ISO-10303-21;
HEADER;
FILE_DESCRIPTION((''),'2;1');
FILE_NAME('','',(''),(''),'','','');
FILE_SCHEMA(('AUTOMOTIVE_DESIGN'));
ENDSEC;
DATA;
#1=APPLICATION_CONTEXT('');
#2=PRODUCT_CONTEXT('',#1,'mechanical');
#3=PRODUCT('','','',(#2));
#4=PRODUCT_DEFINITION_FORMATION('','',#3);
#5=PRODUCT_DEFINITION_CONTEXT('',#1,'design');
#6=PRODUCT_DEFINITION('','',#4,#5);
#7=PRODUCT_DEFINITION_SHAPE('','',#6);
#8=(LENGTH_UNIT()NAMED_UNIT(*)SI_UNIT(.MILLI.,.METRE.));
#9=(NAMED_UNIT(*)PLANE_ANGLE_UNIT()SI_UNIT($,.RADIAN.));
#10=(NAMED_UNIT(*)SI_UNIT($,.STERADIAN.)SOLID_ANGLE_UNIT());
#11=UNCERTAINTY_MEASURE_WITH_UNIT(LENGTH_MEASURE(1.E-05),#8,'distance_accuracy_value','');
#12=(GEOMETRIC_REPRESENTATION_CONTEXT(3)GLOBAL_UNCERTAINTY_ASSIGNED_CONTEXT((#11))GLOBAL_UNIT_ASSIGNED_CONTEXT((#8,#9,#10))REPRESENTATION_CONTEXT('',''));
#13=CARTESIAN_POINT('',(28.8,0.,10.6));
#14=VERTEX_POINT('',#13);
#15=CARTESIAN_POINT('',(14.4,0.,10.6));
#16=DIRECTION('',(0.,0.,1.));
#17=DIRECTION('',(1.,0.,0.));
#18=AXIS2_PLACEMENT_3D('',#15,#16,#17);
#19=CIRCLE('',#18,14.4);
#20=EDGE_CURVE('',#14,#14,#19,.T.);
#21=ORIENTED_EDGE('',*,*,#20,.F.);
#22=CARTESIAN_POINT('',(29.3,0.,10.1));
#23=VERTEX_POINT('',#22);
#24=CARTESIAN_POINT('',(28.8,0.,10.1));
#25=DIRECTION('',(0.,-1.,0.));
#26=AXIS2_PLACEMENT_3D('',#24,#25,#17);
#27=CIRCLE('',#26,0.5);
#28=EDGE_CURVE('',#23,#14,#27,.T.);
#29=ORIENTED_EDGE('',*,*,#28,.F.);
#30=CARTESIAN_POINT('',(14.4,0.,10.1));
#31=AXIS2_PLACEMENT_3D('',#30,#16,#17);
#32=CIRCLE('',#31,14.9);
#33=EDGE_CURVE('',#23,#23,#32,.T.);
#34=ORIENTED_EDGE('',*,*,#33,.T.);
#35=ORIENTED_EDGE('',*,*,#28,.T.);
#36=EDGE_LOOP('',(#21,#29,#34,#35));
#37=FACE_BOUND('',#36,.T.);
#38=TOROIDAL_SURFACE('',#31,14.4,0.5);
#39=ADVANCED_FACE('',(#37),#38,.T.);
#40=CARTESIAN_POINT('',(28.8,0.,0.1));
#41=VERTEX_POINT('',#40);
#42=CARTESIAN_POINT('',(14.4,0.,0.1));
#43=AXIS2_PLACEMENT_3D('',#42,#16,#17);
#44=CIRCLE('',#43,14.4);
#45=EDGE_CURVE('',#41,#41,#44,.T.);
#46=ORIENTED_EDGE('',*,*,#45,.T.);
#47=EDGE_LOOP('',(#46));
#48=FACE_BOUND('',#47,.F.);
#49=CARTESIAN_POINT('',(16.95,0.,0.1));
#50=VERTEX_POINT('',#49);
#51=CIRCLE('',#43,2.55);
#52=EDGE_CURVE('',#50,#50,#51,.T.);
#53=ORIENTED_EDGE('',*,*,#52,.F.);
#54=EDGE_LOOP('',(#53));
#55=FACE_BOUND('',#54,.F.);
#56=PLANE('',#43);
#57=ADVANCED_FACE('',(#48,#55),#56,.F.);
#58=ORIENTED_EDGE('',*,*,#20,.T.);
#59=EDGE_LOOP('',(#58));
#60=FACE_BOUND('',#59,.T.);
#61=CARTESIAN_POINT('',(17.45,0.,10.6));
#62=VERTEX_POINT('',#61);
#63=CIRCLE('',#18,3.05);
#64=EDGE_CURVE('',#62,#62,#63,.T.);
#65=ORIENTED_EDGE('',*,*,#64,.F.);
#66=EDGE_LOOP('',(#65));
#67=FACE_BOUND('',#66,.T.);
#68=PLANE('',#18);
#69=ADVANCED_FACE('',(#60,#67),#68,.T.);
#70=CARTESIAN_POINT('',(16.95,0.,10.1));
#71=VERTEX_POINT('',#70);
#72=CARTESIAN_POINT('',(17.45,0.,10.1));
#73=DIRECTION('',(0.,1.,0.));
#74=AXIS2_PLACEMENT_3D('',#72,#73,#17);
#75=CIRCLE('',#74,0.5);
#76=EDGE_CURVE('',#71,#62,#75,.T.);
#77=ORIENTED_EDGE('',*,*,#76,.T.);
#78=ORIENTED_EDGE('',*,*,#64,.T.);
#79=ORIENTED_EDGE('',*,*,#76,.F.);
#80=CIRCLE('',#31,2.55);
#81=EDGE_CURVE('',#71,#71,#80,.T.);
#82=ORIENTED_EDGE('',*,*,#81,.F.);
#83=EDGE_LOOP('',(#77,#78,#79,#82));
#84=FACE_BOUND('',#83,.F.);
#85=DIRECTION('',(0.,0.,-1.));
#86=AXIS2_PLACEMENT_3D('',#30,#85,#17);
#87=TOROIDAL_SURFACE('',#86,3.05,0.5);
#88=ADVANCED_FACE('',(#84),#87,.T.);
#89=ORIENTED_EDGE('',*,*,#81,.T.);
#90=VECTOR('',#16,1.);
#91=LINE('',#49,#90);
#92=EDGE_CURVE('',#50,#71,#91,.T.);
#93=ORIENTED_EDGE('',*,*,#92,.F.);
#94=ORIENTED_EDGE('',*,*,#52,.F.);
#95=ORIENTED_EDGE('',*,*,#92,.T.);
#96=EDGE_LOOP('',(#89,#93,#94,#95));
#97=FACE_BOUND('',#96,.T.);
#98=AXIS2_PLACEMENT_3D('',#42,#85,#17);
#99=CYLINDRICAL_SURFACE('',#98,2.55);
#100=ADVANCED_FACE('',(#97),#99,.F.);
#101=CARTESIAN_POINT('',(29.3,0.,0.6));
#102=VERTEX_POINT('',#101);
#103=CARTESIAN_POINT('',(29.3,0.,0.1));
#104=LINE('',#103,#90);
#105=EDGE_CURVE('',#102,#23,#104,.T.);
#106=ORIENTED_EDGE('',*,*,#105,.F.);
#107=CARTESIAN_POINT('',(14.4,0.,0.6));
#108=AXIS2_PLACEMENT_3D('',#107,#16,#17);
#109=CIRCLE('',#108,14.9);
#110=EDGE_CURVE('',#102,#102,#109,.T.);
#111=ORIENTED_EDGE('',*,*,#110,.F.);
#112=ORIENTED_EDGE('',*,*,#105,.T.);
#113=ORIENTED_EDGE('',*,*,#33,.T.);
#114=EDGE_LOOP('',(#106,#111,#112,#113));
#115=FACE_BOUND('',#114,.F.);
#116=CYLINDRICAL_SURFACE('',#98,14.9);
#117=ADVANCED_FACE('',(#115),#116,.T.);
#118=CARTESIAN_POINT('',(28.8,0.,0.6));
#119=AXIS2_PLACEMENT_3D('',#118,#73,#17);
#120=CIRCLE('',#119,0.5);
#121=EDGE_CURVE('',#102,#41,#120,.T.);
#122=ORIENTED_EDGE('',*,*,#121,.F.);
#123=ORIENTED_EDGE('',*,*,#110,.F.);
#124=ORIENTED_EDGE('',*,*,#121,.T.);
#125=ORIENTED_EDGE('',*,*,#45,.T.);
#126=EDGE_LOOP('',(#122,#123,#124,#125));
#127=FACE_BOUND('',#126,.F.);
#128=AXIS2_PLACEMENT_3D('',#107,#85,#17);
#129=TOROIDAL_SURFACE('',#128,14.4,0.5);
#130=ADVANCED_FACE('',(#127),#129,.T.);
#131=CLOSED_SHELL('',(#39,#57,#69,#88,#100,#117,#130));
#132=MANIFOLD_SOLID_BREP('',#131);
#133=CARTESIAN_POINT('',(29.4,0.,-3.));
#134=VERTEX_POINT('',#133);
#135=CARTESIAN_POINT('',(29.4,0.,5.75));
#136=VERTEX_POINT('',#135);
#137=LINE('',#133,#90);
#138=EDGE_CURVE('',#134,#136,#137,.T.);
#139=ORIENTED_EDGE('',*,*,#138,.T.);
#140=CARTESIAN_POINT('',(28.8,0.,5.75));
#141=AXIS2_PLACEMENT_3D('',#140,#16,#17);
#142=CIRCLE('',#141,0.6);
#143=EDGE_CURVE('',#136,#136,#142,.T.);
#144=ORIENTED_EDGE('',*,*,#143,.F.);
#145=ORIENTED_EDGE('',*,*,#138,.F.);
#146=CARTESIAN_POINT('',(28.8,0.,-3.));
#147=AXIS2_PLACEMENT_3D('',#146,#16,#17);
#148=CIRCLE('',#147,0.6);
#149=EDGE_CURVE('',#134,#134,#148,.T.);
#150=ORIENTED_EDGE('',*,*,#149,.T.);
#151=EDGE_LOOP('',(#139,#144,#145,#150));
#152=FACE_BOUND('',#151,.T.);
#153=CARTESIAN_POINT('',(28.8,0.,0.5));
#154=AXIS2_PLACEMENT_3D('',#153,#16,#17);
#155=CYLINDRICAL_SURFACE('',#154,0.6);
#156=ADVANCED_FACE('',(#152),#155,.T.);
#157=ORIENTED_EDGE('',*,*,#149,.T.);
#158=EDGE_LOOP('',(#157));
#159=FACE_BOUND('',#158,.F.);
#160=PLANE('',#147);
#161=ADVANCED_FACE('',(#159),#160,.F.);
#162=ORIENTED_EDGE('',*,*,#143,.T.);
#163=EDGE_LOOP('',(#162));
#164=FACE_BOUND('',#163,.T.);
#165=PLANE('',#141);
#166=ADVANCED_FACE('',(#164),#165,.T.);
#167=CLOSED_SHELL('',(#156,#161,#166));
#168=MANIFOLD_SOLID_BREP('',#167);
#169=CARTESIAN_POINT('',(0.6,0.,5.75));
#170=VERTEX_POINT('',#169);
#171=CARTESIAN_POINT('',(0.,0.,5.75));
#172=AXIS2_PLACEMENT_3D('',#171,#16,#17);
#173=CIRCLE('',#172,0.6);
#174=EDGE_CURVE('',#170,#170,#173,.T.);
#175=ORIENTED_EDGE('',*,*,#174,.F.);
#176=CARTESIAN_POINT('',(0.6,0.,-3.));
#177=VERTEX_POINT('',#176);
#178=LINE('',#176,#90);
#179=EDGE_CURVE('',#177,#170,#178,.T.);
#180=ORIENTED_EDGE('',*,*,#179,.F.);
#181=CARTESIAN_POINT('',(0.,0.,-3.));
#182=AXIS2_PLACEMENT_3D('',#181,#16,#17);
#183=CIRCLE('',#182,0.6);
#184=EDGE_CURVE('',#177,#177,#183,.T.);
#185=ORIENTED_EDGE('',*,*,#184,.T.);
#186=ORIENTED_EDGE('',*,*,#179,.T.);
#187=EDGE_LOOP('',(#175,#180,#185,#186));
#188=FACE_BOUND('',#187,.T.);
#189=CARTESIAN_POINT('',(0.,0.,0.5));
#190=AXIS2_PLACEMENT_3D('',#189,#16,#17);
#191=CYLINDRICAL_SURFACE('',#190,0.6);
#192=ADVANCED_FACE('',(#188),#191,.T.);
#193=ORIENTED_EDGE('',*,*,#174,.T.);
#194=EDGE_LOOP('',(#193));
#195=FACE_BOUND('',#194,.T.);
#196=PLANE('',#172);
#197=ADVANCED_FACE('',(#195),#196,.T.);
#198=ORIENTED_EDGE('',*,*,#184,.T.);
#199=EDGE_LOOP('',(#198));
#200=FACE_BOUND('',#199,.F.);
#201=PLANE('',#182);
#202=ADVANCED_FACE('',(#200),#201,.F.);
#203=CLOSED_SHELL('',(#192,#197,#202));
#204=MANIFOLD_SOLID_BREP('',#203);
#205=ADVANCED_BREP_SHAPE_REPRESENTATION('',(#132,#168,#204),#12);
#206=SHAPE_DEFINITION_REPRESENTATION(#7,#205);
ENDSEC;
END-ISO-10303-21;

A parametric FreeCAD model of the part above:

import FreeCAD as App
import Part
import Sketcher
from FreeCAD import Vector


def edges_at(feature, points):
    """Names of the edges that pass closest to the given points."""
    edges = feature.Shape.Edges
    near = lambda p: min(range(len(edges)), key=lambda i: edges[i].distToShape(Part.Vertex(*p))[0])
    return sorted({f"Edge{near(p) + 1}" for p in points})

doc = App.newDocument("Part")
params = doc.addObject("Spreadsheet::Sheet", "Params")
for row, (alias, value) in enumerate([
    ("sketch1_diameter", "1.2 mm"),
    ("pad1_length", "5.25 mm"),
    ("pad1_length2", "3.5 mm"),
    ("sketch2_diameter", "29.8 mm"),
    ("sketch2_diameter2", "5.1 mm"),
    ("pad2_length", "10.5 mm"),
    ("fillet_radius", "0.5 mm"),
], start=1):
    params.set(f"A{row}", alias)
    params.set(f"B{row}", "=" + value)
    params.setAlias(f"B{row}", alias)

body = doc.addObject("PartDesign::Body", "Body")
body.AllowCompound = True

# Sketch on XY plane
sketch1 = body.newObject("Sketcher::SketchObject", "Sketch")
sketch1.AttachmentSupport = (doc.getObject("XY_Plane"), [""])
sketch1.MapMode = "FlatFace"
sketch1.AttachmentOffset = App.Placement(Vector(0, 0, 0.5), App.Rotation())
sketch1.addGeometry(Part.Circle(Vector(0, 0, 0), Vector(0, 0, 1), 0.6), False)
sketch1.addGeometry(Part.Circle(Vector(28.8, 0, 0), Vector(0, 0, 1), 0.6), False)
sketch1.addConstraint(Sketcher.Constraint("Coincident", 0, 3, -1, 1))
sketch1.addConstraint(Sketcher.Constraint("Equal", 0, 1))
sketch1.addConstraint(Sketcher.Constraint("PointOnObject", 1, 3, -1))
sketch1.addConstraint(Sketcher.Constraint("Diameter", 0, 1.2))
sketch1.addConstraint(Sketcher.Constraint("DistanceX", -1, 1, 1, 3, 28.8))
sketch1.setExpression("Constraints[3]", "Params.sketch1_diameter")
pad1 = body.newObject("PartDesign::Pad", "Pad")
pad1.Profile = sketch1
pad1.Type = "TwoLengths"
pad1.setExpression("Length", "Params.pad1_length")
pad1.setExpression("Length2", "Params.pad1_length2")
body2 = doc.addObject("PartDesign::Body", "Body001")

# Sketch on XY plane
sketch2 = body2.newObject("Sketcher::SketchObject", "Sketch001")
sketch2.AttachmentSupport = (doc.getObject("XY_Plane001"), [""])
sketch2.MapMode = "FlatFace"
sketch2.AttachmentOffset = App.Placement(Vector(0, 0, 0.1), App.Rotation())
sketch2.addGeometry(Part.Circle(Vector(14.4, 0, 0), Vector(0, 0, 1), 14.9), False)
sketch2.addGeometry(Part.Circle(Vector(14.4, 0, 0), Vector(0, 0, 1), 2.5), False)
sketch2.addConstraint(Sketcher.Constraint("Coincident", 1, 3, 0, 3))
sketch2.addConstraint(Sketcher.Constraint("PointOnObject", 0, 3, -1))
sketch2.addConstraint(Sketcher.Constraint("Diameter", 0, 29.8))
sketch2.addConstraint(Sketcher.Constraint("Diameter", 1, 5.1))
sketch2.addConstraint(Sketcher.Constraint("DistanceX", -1, 1, 0, 3, 14.4))
sketch2.setExpression("Constraints[2]", "Params.sketch2_diameter")
sketch2.setExpression("Constraints[3]", "Params.sketch2_diameter2")
pad2 = body2.newObject("PartDesign::Pad", "Pad001")
pad2.Profile = sketch2
pad2.setExpression("Length", "Params.pad2_length")
doc.recompute()

fillet = body2.newObject("PartDesign::Fillet", "Fillet")
fillet.Base = (pad2, edges_at(pad2, [(11.85, 0, 10.6), (-0.5, 0, 10.6), (-0.5, 0, 0.1)]))
fillet.setExpression("Radius", "Params.fillet_radius")

doc.recompute()
